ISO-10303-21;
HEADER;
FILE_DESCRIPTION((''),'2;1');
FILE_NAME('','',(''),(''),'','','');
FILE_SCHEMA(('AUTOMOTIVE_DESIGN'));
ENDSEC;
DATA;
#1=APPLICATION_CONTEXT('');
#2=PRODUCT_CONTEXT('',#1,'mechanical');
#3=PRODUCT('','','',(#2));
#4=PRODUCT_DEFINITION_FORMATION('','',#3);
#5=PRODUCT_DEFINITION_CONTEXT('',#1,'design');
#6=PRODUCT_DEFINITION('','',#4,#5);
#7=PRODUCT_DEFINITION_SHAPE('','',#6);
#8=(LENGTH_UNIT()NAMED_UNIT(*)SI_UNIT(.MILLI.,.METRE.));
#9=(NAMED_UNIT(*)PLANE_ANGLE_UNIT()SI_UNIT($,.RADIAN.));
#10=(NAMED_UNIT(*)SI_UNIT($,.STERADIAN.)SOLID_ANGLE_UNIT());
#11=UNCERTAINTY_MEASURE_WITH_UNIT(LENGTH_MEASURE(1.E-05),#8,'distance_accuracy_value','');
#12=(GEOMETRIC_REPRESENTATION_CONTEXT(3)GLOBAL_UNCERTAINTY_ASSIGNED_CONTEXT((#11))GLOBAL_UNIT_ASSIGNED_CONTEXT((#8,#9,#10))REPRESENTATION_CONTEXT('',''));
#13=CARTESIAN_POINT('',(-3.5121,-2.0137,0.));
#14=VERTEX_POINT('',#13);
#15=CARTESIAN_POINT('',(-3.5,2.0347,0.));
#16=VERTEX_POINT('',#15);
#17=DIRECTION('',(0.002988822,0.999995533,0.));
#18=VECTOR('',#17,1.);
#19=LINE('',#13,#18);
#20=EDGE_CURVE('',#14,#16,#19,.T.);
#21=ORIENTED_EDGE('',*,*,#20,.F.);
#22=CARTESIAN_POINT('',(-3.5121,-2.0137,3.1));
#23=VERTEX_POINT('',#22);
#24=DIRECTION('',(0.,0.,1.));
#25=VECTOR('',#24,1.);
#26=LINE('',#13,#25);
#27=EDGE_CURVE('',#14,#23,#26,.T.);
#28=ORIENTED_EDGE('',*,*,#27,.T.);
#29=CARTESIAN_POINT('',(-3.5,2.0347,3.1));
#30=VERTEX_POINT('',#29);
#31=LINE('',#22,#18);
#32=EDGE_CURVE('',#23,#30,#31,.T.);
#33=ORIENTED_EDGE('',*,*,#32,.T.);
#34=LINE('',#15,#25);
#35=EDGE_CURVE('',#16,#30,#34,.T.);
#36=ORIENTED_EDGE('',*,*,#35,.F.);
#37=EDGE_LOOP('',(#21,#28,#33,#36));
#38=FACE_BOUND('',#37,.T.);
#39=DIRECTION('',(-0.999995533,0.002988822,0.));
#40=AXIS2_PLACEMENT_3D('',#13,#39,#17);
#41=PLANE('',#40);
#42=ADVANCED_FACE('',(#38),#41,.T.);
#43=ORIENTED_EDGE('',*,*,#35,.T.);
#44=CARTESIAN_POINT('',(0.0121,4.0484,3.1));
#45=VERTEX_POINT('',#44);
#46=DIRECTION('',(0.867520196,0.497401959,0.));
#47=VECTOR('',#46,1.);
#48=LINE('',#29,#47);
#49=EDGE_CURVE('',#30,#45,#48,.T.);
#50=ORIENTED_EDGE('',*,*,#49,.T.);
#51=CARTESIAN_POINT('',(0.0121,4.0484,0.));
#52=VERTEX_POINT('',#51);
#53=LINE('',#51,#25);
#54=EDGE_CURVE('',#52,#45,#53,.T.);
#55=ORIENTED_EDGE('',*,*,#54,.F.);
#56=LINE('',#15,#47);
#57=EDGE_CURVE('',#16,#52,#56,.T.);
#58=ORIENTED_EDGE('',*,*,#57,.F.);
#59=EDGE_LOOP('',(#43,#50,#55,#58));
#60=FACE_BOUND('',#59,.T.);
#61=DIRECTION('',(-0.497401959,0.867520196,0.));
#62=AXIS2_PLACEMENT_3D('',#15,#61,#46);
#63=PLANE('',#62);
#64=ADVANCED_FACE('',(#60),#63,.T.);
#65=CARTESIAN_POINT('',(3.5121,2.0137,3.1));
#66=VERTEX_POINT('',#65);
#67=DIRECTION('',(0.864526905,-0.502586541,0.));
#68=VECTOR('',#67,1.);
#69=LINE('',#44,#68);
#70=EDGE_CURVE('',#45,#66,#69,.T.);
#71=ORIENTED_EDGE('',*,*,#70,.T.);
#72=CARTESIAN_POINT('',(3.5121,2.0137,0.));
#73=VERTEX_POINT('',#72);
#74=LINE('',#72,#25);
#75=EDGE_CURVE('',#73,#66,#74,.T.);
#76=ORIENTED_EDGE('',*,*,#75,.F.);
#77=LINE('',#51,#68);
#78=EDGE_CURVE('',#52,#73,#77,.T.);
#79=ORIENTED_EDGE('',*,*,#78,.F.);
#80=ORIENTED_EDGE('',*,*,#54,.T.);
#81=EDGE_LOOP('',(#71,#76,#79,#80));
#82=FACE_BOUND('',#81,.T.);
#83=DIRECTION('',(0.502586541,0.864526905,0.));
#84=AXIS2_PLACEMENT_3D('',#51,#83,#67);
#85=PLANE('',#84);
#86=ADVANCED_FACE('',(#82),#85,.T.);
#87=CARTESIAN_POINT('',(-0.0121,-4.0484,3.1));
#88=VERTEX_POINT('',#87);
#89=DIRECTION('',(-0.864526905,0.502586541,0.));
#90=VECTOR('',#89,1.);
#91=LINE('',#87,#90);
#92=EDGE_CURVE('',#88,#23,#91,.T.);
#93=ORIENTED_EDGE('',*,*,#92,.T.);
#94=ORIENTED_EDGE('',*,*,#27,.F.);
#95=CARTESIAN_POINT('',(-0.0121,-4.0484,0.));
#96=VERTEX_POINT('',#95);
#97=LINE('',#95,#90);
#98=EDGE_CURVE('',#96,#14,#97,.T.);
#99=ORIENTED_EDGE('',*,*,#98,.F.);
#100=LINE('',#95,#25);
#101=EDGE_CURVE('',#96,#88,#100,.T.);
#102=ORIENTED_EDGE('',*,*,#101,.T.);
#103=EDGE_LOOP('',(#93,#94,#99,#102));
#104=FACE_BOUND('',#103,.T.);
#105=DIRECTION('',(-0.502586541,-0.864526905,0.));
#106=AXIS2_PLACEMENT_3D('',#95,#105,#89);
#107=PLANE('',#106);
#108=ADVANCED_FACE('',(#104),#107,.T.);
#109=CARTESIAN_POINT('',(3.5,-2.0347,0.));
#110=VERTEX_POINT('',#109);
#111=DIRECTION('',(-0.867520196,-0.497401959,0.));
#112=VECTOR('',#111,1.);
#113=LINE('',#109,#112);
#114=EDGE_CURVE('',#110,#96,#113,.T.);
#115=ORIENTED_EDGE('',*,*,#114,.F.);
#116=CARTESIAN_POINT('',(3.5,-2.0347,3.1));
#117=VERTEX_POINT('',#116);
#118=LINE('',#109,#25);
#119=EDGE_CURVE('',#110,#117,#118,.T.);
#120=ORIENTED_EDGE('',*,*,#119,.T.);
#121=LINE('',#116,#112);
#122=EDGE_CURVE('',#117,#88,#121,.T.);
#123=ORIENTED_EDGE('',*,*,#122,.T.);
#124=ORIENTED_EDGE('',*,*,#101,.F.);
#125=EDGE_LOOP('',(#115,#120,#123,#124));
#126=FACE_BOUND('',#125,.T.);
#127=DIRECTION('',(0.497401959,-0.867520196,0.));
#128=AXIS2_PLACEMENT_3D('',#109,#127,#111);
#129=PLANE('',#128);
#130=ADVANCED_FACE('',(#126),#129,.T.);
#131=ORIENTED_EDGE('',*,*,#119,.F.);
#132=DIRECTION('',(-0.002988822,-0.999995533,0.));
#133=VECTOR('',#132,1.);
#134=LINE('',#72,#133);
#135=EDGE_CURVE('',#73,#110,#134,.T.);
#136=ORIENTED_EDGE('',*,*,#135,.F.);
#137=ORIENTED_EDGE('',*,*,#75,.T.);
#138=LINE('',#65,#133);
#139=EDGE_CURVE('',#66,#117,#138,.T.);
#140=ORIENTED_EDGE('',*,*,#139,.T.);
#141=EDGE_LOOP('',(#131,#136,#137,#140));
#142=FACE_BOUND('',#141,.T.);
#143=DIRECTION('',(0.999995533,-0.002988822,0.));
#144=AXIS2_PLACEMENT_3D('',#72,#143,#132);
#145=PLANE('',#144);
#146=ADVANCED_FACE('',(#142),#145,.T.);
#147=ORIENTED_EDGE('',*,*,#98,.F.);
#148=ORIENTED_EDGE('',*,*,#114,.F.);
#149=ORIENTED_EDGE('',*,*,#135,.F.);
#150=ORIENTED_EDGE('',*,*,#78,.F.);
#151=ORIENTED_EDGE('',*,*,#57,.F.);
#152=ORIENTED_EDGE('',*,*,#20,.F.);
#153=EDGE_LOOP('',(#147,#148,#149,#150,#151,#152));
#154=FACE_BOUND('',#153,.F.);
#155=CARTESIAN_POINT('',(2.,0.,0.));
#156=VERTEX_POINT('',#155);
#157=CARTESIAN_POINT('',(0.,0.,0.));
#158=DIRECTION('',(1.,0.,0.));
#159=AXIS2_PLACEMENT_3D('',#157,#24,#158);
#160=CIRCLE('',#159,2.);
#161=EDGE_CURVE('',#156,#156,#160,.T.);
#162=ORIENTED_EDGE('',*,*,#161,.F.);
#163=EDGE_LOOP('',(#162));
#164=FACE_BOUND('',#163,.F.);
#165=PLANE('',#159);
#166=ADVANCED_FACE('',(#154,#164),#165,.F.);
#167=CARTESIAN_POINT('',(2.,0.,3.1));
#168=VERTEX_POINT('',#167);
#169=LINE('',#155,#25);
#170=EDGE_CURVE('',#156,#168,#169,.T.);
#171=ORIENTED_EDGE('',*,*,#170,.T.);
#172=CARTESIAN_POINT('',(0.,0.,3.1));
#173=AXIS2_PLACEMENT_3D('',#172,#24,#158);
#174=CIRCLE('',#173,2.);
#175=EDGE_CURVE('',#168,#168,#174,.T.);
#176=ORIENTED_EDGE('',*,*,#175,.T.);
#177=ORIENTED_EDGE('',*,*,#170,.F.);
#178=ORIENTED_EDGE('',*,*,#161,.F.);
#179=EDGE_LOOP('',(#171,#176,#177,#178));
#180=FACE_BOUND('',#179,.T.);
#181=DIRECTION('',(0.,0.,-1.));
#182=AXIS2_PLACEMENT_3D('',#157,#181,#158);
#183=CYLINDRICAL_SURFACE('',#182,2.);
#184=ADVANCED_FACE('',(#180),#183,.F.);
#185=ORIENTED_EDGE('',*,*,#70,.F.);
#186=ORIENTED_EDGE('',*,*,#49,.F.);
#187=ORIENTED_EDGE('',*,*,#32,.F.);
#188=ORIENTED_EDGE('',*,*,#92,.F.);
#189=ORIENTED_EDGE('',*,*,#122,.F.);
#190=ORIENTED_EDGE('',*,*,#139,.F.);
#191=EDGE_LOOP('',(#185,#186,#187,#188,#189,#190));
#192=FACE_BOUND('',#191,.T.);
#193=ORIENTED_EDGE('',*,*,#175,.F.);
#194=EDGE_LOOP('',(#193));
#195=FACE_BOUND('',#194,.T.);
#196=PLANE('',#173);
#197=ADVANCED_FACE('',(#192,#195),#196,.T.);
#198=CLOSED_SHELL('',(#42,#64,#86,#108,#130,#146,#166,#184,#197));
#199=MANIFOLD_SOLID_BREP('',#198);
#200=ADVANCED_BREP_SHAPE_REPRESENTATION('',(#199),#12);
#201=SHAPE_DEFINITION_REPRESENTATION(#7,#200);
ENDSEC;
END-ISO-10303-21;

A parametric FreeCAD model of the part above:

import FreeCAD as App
import Part
import Sketcher

V = App.Vector


def add_polygon(sketch, points):
    """Adds a closed chain of lines whose ends are joined by coincident constraints."""
    first, n = sketch.GeometryCount, len(points)
    for a, b in zip(points, points[1:] + points[:1]):
        sketch.addGeometry(Part.LineSegment(App.Vector(*a, 0), App.Vector(*b, 0)), False)
    for i in range(n):
        sketch.addConstraint(Sketcher.Constraint("Coincident", first + i, 2, first + (i + 1) % n, 1))

doc = App.newDocument("Part")
params = doc.addObject("Spreadsheet::Sheet", "Params")
for row, (alias, value) in enumerate([
    ("sketch1_diameter", "4 mm"),
    ("pad1_length", "3.1 mm"),
], start=1):
    params.set(f"A{row}", alias)
    params.set(f"B{row}", "=" + value)
    params.setAlias(f"B{row}", alias)

body = doc.addObject("PartDesign::Body", "Body")

# Sketch on XY plane
sketch1 = doc.addObject("Sketcher::SketchObject", "Sketch")
body.addObject(sketch1)
sketch1.AttachmentSupport = (doc.XY_Plane, [""])
sketch1.MapMode = "FlatFace"
add_polygon(sketch1, [(-0.0121, -4.0484), (3.5, -2.0347), (3.5121, 2.0137), (0.0121, 4.0484), (-3.5, 2.0347), (-3.5121, -2.0137)])  # lines 0-5
sketch1.addGeometry(Part.Circle(V(0, 0, 0), V(0, 0, 1), 2), False)  # 6
sketch1.addConstraint([
    Sketcher.Constraint("Coincident", 6, 3, -1, 1),
    Sketcher.Constraint("Symmetric", 0, 2, 3, 2, -1, 1),
    Sketcher.Constraint("Symmetric", 1, 2, 4, 2, -1, 1),
    Sketcher.Constraint("Symmetric", 2, 2, 5, 2, -1, 1),
    Sketcher.Constraint("Equal", 0, 1),
    Sketcher.Constraint("Equal", 1, 2),
    Sketcher.Constraint("Diameter", 6, 4.0),
    Sketcher.Constraint("DistanceX", -1, 1, 0, 2, 3.5),
    Sketcher.Constraint("DistanceX", 2, 2, 1, 2, 3.5),
    Sketcher.Constraint("DistanceX", -1, 1, 1, 2, 3.512),
    Sketcher.Constraint("DistanceY", 0, 2, 2, 2, 6.083),
])
sketch1.setExpression("Constraints[12]", "Params.sketch1_diameter")
pad1 = doc.addObject("PartDesign::Pad", "Pad")
body.addObject(pad1)
pad1.Profile = sketch1
pad1.setExpression("Length", "Params.pad1_length")

doc.recompute()
